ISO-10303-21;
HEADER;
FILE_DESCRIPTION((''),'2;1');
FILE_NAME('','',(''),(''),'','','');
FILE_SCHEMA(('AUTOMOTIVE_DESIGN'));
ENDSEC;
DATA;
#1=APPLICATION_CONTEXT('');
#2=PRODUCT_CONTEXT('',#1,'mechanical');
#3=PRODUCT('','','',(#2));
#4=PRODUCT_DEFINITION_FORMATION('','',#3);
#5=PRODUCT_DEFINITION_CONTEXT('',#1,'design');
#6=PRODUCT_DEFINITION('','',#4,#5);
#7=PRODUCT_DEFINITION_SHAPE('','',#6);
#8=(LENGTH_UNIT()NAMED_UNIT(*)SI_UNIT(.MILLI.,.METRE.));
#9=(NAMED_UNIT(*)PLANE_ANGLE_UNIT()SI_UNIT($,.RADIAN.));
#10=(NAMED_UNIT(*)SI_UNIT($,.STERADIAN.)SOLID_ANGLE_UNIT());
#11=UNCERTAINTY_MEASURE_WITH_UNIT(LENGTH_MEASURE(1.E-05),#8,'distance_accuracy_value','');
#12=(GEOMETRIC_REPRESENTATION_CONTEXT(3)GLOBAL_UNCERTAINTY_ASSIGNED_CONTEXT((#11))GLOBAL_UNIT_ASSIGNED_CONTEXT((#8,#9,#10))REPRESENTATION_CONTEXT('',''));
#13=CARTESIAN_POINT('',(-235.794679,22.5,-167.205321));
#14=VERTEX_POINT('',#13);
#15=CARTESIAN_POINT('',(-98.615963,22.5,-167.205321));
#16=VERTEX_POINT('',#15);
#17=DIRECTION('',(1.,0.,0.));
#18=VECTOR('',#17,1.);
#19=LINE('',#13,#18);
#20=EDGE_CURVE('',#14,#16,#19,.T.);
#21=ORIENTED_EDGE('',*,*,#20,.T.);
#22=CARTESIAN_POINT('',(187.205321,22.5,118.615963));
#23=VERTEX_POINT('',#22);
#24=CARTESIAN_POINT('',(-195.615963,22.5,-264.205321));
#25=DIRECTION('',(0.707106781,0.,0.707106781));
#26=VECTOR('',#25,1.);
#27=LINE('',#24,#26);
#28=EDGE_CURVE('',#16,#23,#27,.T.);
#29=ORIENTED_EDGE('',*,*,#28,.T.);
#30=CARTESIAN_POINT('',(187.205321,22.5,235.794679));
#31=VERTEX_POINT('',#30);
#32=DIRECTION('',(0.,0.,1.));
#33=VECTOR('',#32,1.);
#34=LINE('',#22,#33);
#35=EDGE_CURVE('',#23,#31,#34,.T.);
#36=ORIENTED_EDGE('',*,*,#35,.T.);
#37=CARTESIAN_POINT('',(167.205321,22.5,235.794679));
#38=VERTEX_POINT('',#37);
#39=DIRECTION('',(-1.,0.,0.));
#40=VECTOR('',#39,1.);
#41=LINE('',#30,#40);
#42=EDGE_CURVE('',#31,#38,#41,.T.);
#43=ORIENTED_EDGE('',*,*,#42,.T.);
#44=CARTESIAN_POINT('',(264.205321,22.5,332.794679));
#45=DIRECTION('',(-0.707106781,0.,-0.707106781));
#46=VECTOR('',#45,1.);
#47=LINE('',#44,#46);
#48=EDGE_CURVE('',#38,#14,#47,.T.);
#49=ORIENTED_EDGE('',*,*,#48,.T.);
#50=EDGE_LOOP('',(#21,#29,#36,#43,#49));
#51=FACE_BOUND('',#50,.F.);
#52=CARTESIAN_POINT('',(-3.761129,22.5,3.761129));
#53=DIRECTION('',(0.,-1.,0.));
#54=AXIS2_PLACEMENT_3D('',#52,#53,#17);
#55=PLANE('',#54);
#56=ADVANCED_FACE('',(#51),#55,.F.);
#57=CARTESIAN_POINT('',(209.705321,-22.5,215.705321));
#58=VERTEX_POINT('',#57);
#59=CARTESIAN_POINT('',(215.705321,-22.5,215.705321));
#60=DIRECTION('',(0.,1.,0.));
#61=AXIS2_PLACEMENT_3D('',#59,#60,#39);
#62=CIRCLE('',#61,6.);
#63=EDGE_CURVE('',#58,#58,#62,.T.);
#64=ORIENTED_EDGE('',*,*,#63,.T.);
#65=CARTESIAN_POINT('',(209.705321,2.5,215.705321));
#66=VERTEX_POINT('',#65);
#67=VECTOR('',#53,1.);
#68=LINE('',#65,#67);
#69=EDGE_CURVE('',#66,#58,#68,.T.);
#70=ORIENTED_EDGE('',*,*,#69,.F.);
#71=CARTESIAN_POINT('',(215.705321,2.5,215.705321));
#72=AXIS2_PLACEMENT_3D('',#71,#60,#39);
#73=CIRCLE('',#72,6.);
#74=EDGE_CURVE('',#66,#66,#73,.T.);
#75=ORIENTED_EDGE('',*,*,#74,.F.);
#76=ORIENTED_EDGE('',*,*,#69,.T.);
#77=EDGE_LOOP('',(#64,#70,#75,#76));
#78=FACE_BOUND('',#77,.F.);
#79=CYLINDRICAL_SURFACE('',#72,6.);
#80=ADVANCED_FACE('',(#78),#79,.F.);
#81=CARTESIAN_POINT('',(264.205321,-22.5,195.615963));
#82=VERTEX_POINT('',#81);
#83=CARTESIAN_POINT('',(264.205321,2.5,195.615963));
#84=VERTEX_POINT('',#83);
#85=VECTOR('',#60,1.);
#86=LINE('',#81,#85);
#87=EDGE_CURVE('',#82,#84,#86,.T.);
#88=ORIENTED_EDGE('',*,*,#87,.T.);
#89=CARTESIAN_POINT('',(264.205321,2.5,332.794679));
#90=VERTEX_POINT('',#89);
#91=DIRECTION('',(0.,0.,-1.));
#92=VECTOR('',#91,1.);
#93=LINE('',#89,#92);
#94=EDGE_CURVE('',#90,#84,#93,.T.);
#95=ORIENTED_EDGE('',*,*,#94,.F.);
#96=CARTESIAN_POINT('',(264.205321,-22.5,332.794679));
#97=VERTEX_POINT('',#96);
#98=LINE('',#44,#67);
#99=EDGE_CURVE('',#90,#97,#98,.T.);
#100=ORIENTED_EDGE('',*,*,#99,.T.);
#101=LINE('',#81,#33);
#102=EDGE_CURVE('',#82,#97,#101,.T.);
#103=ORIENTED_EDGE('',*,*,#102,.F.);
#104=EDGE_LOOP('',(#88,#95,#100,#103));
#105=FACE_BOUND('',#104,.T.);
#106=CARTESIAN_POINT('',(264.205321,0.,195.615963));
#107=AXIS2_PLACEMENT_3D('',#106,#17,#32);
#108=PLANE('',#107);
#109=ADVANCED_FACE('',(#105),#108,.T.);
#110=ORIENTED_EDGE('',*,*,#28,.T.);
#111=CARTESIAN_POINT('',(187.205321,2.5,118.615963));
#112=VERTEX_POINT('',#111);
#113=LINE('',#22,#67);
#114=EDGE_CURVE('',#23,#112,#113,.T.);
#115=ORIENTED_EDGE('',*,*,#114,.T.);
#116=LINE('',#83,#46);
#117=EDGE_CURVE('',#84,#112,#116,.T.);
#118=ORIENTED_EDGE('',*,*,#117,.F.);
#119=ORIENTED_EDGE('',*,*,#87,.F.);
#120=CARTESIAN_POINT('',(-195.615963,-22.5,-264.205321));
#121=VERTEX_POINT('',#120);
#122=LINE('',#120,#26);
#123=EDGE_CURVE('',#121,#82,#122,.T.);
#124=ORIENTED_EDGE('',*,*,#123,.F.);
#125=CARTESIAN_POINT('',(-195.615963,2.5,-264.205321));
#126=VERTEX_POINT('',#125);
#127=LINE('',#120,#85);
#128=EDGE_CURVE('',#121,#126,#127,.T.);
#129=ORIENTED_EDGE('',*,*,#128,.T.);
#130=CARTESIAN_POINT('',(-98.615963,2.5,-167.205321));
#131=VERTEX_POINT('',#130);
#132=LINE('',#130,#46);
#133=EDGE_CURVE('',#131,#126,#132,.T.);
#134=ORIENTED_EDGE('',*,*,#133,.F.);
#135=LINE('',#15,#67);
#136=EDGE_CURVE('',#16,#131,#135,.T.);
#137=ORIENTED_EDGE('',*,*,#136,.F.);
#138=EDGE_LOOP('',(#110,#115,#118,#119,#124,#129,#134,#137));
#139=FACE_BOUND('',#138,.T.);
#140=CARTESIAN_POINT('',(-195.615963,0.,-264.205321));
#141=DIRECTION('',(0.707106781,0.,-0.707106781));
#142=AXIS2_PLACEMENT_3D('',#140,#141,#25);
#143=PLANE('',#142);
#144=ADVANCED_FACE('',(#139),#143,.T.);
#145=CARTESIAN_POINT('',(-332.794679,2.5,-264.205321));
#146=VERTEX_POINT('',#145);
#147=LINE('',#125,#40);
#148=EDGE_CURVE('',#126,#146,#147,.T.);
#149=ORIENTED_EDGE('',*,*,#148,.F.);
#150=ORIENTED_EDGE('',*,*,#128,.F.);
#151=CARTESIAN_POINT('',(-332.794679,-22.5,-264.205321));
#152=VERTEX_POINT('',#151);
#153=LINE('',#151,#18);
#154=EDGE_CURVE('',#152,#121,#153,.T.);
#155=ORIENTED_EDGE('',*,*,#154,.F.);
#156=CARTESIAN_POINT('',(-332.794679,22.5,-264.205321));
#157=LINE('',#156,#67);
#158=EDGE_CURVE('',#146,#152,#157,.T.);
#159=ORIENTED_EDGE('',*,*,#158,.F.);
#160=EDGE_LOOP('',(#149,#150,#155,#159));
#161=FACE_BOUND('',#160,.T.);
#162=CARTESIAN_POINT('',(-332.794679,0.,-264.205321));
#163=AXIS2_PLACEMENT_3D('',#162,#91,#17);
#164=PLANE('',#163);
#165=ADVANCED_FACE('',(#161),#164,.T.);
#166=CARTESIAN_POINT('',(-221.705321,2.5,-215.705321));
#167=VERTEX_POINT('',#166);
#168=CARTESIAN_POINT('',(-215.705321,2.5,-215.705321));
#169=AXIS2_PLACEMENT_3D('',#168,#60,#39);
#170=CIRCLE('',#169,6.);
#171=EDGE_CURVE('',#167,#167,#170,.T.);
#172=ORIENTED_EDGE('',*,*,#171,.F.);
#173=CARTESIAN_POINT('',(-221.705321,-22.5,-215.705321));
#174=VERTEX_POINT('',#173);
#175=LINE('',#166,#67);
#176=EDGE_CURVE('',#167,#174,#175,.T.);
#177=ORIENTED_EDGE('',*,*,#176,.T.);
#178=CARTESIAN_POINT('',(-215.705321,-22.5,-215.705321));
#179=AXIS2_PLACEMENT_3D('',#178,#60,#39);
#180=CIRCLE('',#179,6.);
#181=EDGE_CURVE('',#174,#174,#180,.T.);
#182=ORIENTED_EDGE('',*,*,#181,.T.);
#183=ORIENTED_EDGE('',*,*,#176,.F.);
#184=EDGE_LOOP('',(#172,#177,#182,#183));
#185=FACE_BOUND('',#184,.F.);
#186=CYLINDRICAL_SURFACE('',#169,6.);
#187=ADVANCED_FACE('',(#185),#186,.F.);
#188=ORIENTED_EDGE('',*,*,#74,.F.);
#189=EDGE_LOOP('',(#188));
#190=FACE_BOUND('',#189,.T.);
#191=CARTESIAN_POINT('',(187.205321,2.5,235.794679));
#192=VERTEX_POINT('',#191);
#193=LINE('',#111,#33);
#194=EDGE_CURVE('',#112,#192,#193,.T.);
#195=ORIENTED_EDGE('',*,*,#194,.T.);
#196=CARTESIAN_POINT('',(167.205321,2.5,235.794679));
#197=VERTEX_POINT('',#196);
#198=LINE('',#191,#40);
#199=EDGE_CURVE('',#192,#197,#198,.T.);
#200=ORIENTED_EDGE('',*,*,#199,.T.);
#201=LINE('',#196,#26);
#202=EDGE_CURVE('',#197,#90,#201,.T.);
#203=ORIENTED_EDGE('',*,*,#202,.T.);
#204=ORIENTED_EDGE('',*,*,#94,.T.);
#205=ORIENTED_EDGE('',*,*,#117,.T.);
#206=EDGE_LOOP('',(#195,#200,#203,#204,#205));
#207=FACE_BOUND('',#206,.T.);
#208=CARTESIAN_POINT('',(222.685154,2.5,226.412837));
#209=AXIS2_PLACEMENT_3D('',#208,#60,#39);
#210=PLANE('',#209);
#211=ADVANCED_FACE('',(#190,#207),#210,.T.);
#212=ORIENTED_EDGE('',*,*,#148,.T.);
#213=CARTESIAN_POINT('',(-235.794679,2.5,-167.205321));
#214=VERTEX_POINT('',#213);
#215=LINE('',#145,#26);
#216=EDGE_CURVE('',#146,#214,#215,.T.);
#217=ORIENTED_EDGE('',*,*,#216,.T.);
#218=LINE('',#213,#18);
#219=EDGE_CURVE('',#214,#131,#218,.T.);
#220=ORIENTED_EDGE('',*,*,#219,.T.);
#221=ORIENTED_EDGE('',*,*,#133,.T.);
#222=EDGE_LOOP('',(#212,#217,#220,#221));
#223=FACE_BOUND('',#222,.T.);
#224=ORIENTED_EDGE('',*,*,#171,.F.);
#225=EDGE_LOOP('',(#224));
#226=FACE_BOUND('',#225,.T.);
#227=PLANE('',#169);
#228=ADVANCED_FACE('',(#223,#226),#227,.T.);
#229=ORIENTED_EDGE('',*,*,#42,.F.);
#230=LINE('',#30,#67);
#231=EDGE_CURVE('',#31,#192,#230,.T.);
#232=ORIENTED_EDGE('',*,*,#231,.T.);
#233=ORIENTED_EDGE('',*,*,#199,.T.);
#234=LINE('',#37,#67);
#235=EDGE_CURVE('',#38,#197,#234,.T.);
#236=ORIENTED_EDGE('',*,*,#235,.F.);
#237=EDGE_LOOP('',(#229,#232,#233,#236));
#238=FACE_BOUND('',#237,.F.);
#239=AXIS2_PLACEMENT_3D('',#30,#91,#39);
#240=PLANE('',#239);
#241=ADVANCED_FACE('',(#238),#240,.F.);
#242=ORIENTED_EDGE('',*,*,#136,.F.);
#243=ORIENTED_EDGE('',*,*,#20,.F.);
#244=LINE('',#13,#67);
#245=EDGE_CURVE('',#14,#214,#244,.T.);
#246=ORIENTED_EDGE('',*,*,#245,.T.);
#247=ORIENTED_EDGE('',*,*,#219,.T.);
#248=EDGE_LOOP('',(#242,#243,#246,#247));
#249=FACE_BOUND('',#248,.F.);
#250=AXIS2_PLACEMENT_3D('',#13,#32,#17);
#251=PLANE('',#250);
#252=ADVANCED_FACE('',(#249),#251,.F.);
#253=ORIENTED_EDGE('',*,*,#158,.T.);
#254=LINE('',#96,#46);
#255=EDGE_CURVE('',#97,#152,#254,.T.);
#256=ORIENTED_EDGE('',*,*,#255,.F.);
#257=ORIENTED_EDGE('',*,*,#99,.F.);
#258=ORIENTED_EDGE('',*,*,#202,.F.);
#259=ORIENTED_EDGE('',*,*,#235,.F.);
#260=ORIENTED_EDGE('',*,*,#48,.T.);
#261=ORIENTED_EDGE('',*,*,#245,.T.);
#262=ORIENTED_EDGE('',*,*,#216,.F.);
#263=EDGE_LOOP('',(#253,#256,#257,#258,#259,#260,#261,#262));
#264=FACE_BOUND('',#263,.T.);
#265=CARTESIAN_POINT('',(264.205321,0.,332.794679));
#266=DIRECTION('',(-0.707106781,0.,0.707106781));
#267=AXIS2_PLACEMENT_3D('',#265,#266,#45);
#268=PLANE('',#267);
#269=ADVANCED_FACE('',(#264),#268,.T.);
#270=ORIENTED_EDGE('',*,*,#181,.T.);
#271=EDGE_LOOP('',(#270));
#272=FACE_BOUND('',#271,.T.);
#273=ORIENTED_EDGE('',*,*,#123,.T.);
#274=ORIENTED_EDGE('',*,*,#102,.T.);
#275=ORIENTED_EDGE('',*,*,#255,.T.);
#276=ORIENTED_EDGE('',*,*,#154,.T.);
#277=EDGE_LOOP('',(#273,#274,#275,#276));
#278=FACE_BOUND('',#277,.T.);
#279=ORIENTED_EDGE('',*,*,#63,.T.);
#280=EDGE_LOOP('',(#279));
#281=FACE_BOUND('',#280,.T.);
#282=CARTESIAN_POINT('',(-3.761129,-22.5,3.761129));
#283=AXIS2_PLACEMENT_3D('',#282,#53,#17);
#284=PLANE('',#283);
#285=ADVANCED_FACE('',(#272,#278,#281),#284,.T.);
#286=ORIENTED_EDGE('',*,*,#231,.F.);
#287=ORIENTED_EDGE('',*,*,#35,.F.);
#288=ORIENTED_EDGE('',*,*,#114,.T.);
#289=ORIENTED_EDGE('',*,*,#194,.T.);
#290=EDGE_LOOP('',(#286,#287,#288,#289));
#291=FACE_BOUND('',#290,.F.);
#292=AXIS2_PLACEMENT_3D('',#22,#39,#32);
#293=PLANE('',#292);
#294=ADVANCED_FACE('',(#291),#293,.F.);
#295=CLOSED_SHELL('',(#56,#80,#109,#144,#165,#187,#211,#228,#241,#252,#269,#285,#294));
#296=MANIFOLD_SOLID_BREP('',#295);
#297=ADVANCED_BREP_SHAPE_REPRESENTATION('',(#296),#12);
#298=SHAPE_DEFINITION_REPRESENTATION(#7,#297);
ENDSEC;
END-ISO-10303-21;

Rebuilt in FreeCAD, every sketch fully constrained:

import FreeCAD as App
import Part
import Sketcher

V = App.Vector
Q = App.Units.Quantity

doc = App.newDocument("Part")
body = doc.addObject("PartDesign::Body", "Body")

# Sketch on XZ plane
sketch1 = body.newObject("Sketcher::SketchObject", "Sketch")
sketch1.AttachmentSupport = (doc.getObject("XZ_Plane"), [""])
sketch1.MapMode = "FlatFace"
sketch1.addGeometry(Part.LineSegment(V(264.205321, 195.615963, 0), V(264.205321, 332.794679, 0)), False)
sketch1.addGeometry(Part.LineSegment(V(264.205321, 332.794679, 0), V(-332.794679, -264.205321, 0)), False)
sketch1.addGeometry(Part.LineSegment(V(-332.794679, -264.205321, 0), V(-195.615963, -264.205321, 0)), False)
sketch1.addGeometry(Part.LineSegment(V(-195.615963, -264.205321, 0), V(264.205321, 195.615963, 0)), False)
sketch1.addConstraint(Sketcher.Constraint("Coincident", 0, 2, 1, 1))
sketch1.addConstraint(Sketcher.Constraint("Coincident", 1, 2, 2, 1))
sketch1.addConstraint(Sketcher.Constraint("Coincident", 2, 2, 3, 1))
sketch1.addConstraint(Sketcher.Constraint("Coincident", 3, 2, 0, 1))
sketch1.addConstraint(Sketcher.Constraint("Vertical", 0))
sketch1.addConstraint(Sketcher.Constraint("Horizontal", 2))
sketch1.addConstraint(Sketcher.Constraint("Parallel", 1, 3))
sketch1.addConstraint(Sketcher.Constraint("Equal", 2, 0))
sketch1.addConstraint(Sketcher.Constraint("DistanceX", 1, 2, 0, 2, Q("597 mm")))
sketch1.addConstraint(Sketcher.Constraint("DistanceX", 2, 1, 2, 2, Q("137.178716 mm")))
sketch1.addConstraint(Sketcher.Constraint("DistanceX", -1, 1, 0, 2, Q("264.205321 mm")))
sketch1.addConstraint(Sketcher.Constraint("DistanceY", -1, 1, 0, 2, Q("332.794679 mm")))
pad1 = body.newObject("PartDesign::Pad", "Pad")
pad1.Profile = sketch1
pad1.Length = 45
pad1.Midplane = True

# Sketch on XZ plane
sketch2 = body.newObject("Sketcher::SketchObject", "Sketch001")
sketch2.AttachmentSupport = (doc.getObject("XZ_Plane"), [""])
sketch2.MapMode = "FlatFace"
sketch2.AttachmentOffset = App.Placement(V(0, 0, -22.5), App.Rotation())
sketch2.addGeometry(Part.LineSegment(V(187.205321, 235.794679, 0), V(167.205321, 235.794679, 0)), False)
sketch2.addGeometry(Part.LineSegment(V(167.205321, 235.794679, 0), V(264.205321, 332.794679, 0)), False)
sketch2.addGeometry(Part.LineSegment(V(264.205321, 332.794679, 0), V(264.205321, 195.615963, 0)), False)
sketch2.addGeometry(Part.LineSegment(V(264.205321, 195.615963, 0), V(187.205321, 118.615963, 0)), False)
sketch2.addGeometry(Part.LineSegment(V(187.205321, 118.615963, 0), V(187.205321, 235.794679, 0)), False)
sketch2.addConstraint(Sketcher.Constraint("Coincident", 0, 2, 1, 1))
sketch2.addConstraint(Sketcher.Constraint("Coincident", 1, 2, 2, 1))
sketch2.addConstraint(Sketcher.Constraint("Coincident", 2, 2, 3, 1))
sketch2.addConstraint(Sketcher.Constraint("Coincident", 3, 2, 4, 1))
sketch2.addConstraint(Sketcher.Constraint("Coincident", 4, 2, 0, 1))
sketch2.addConstraint(Sketcher.Constraint("Horizontal", 0))
sketch2.addConstraint(Sketcher.Constraint("Vertical", 2))
sketch2.addConstraint(Sketcher.Constraint("Vertical", 4))
sketch2.addConstraint(Sketcher.Constraint("Parallel", 1, 3))
sketch2.addConstraint(Sketcher.Constraint("DistanceX", 0, 2, 0, 1, Q("20 mm")))
sketch2.addConstraint(Sketcher.Constraint("Angle", 1, Q("45 deg")))
sketch2.addConstraint(Sketcher.Constraint("DistanceX", 0, 2, 1, 2, Q("97 mm")))
sketch2.addConstraint(Sketcher.Constraint("DistanceY", 2, 2, 2, 1, Q("137.178716 mm")))
sketch2.addConstraint(Sketcher.Constraint("DistanceX", -1, 1, 0, 2, Q("167.205321 mm")))
sketch2.addConstraint(Sketcher.Constraint("DistanceY", -1, 1, 0, 2, Q("235.794679 mm")))
pocket1 = body.newObject("PartDesign::Pocket", "Pocket")
pocket1.Profile = sketch2
pocket1.Length = 20
pocket1.Reversed = True

# Sketch on XZ plane
sketch3 = body.newObject("Sketcher::SketchObject", "Sketch002")
sketch3.AttachmentSupport = (doc.getObject("XZ_Plane"), [""])
sketch3.MapMode = "FlatFace"
sketch3.AttachmentOffset = App.Placement(V(0, 0, -22.5), App.Rotation())
sketch3.addGeometry(Part.LineSegment(V(-332.794679, -264.205321, 0), V(-235.794679, -167.205321, 0)), False)
sketch3.addGeometry(Part.LineSegment(V(-235.794679, -167.205321, 0), V(-98.615963, -167.205321, 0)), False)
sketch3.addGeometry(Part.LineSegment(V(-98.615963, -167.205321, 0), V(-195.615963, -264.205321, 0)), False)
sketch3.addGeometry(Part.LineSegment(V(-195.615963, -264.205321, 0), V(-332.794679, -264.205321, 0)), False)
sketch3.addConstraint(Sketcher.Constraint("Coincident", 0, 2, 1, 1))
sketch3.addConstraint(Sketcher.Constraint("Coincident", 1, 2, 2, 1))
sketch3.addConstraint(Sketcher.Constraint("Coincident", 2, 2, 3, 1))
sketch3.addConstraint(Sketcher.Constraint("Coincident", 3, 2, 0, 1))
sketch3.addConstraint(Sketcher.Constraint("Horizontal", 1))
sketch3.addConstraint(Sketcher.Constraint("Horizontal", 3))
sketch3.addConstraint(Sketcher.Constraint("Parallel", 0, 2))
sketch3.addConstraint(Sketcher.Constraint("Angle", 0, Q("45 deg")))
sketch3.addConstraint(Sketcher.Constraint("DistanceY", 2, 2, 0, 2, Q("97 mm")))
sketch3.addConstraint(Sketcher.Constraint("DistanceX", 1, 1, 1, 2, Q("137.178716 mm")))
sketch3.addConstraint(Sketcher.Constraint("DistanceX", 0, 2, -1, 1, Q("235.794679 mm")))
sketch3.addConstraint(Sketcher.Constraint("DistanceY", 0, 2, -1, 1, Q("167.205321 mm")))
pocket2 = body.newObject("PartDesign::Pocket", "Pocket001")
pocket2.Profile = sketch3
pocket2.Length = 20
pocket2.Reversed = True

# Sketch on XZ plane
sketch4 = body.newObject("Sketcher::SketchObject", "Sketch003")
sketch4.AttachmentSupport = (doc.getObject("XZ_Plane"), [""])
sketch4.MapMode = "FlatFace"
sketch4.AttachmentOffset = App.Placement(V(0, 0, -2.5), App.Rotation())
sketch4.addGeometry(Part.Circle(V(215.705321, 215.705321, 0), V(0, 0, 1), 6), False)
sketch4.addConstraint(Sketcher.Constraint("Diameter", 0, Q("12 mm")))
sketch4.addConstraint(Sketcher.Constraint("DistanceX", -1, 1, 0, 3, Q("215.705321 mm")))
sketch4.addConstraint(Sketcher.Constraint("DistanceY", -1, 1, 0, 3, Q("215.705321 mm")))
pocket3 = body.newObject("PartDesign::Pocket", "Pocket002")
pocket3.Profile = sketch4
pocket3.Type = "ThroughAll"
pocket3.Reversed = True

# Sketch on XZ plane
sketch5 = body.newObject("Sketcher::SketchObject", "Sketch004")
sketch5.AttachmentSupport = (doc.getObject("XZ_Plane"), [""])
sketch5.MapMode = "FlatFace"
sketch5.AttachmentOffset = App.Placement(V(0, 0, -2.5), App.Rotation())
sketch5.addGeometry(Part.Circle(V(-215.705321, -215.705321, 0), V(0, 0, 1), 6), False)
sketch5.addConstraint(Sketcher.Constraint("Diameter", 0, Q("12 mm")))
sketch5.addConstraint(Sketcher.Constraint("DistanceX", 0, 3, -1, 1, Q("215.705321 mm")))
sketch5.addConstraint(Sketcher.Constraint("DistanceY", 0, 3, -1, 1, Q("215.705321 mm")))
pocket4 = body.newObject("PartDesign::Pocket", "Pocket003")
pocket4.Profile = sketch5
pocket4.Type = "ThroughAll"
pocket4.Reversed = True

doc.recompute()
